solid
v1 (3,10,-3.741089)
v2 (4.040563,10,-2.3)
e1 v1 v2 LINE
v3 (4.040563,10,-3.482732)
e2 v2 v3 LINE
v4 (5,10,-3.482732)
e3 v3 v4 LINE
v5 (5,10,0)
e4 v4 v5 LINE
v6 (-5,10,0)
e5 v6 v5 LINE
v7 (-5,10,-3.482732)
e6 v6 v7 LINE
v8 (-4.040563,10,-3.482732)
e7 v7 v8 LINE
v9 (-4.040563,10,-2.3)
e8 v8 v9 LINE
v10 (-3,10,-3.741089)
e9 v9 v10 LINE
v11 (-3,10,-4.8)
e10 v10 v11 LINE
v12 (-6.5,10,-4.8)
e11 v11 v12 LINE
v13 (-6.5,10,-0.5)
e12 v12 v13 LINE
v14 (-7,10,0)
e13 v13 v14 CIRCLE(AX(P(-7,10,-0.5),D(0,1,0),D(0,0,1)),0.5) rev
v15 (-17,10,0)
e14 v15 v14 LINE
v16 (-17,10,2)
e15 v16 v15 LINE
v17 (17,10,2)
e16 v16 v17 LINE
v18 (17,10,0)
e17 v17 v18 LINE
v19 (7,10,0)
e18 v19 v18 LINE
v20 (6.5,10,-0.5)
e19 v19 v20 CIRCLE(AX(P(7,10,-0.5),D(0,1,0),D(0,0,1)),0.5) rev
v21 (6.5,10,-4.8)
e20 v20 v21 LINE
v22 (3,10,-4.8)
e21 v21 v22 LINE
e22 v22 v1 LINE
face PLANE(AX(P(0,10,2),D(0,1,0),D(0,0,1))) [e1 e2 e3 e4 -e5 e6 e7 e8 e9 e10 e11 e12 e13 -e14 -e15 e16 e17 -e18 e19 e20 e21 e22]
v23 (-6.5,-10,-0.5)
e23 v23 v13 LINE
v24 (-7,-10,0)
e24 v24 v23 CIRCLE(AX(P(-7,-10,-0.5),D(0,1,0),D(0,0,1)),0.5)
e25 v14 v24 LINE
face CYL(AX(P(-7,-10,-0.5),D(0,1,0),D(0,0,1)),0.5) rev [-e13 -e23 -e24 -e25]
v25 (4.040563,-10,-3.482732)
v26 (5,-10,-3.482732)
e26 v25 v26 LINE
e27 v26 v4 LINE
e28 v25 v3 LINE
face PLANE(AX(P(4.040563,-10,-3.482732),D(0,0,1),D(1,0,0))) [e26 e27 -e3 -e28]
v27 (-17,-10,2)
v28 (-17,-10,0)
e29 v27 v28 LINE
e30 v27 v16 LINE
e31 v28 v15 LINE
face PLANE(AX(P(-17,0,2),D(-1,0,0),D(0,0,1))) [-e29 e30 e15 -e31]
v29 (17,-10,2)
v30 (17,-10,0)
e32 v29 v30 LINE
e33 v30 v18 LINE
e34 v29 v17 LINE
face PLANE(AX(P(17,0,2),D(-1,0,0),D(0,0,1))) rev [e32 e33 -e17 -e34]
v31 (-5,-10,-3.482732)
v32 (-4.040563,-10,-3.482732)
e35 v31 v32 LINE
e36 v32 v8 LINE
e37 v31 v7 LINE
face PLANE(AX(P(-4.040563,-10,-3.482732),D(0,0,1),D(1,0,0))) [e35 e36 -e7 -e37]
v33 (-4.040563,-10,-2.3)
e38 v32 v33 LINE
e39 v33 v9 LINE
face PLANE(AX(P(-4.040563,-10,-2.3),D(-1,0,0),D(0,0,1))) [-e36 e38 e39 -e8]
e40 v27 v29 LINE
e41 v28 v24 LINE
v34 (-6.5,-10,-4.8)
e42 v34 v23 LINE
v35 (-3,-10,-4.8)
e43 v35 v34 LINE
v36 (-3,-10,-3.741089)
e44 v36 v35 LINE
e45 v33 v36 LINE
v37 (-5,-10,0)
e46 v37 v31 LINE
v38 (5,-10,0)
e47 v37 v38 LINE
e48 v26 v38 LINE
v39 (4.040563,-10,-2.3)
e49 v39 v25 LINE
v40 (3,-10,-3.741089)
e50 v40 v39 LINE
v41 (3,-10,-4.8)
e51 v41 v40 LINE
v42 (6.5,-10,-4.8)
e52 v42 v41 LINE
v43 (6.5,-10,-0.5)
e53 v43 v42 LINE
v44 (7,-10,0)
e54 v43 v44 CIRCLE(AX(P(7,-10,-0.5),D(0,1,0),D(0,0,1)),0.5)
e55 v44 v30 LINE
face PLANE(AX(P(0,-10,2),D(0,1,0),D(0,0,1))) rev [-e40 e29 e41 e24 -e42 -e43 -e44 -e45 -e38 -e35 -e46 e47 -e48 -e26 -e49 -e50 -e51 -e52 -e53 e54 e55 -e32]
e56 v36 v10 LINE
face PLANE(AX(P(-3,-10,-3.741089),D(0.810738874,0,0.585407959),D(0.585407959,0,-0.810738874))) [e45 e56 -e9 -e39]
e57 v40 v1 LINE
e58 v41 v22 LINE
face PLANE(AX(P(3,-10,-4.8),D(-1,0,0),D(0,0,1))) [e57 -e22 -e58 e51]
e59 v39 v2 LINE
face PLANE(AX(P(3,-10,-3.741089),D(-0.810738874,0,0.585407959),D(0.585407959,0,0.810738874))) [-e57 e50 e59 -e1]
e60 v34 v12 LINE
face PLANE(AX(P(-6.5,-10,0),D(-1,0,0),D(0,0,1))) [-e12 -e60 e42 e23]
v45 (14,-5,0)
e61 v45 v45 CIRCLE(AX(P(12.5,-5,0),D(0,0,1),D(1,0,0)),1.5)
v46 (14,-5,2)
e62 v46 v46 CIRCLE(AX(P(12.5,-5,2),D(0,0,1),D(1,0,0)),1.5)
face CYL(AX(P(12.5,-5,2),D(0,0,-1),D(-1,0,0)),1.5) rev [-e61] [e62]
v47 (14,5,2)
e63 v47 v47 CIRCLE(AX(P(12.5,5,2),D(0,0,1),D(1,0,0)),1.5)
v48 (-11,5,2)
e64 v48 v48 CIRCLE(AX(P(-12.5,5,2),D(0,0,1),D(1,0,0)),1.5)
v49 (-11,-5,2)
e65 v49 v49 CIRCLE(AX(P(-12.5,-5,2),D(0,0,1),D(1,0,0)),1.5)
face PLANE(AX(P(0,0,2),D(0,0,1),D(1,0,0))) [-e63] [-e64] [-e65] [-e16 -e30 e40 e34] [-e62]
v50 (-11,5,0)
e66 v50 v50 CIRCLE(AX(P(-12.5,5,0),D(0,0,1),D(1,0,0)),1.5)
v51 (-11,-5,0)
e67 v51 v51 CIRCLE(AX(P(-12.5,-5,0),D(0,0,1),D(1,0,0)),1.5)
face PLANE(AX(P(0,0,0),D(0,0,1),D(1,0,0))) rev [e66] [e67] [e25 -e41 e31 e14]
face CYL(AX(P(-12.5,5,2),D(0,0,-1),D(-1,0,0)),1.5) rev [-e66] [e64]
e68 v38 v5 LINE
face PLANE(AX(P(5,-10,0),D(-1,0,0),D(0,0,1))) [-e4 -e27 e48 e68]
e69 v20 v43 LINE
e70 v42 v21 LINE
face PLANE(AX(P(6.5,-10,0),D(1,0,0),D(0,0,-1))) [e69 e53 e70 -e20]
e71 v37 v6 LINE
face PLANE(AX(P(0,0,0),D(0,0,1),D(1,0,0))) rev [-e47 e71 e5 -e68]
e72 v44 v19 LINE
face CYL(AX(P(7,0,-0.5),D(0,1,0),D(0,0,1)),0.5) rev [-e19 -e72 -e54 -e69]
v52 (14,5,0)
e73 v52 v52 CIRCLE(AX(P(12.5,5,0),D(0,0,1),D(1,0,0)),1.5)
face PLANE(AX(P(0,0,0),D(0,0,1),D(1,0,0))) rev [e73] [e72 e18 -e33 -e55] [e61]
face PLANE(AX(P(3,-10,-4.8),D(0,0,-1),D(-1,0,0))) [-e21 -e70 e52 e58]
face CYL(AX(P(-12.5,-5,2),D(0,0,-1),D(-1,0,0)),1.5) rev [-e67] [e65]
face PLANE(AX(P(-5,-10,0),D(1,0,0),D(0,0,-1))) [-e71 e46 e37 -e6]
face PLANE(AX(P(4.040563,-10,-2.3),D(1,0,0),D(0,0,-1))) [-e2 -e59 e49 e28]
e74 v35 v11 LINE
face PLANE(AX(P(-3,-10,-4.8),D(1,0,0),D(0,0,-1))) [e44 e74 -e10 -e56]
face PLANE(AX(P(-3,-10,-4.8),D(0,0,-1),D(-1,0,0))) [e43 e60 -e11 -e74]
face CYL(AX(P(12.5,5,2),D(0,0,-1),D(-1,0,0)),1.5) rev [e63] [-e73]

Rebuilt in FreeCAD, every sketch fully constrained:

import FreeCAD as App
import Part
import Sketcher
from FreeCAD import Vector


def edges_at(feature, points):
    """Names of the edges that pass closest to the given points."""
    edges = feature.Shape.Edges
    near = lambda p: min(range(len(edges)), key=lambda i: edges[i].distToShape(Part.Vertex(*p))[0])
    return sorted({f"Edge{near(p) + 1}" for p in points})


def add_polygon(sketch, points):
    """Adds a closed chain of lines whose ends are joined by coincident constraints."""
    first, n = sketch.GeometryCount, len(points)
    for a, b in zip(points, points[1:] + points[:1]):
        sketch.addGeometry(Part.LineSegment(App.Vector(*a, 0), App.Vector(*b, 0)), False)
    for i in range(n):
        sketch.addConstraint(Sketcher.Constraint("Coincident", first + i, 2, first + (i + 1) % n, 1))

doc = App.newDocument("Part")
body = doc.addObject("PartDesign::Body", "Body")

sketch1 = doc.addObject("Sketcher::SketchObject", "Sketch")
body.addObject(sketch1)
sketch1.AttachmentSupport = (doc.XY_Plane, [""])
sketch1.MapMode = "FlatFace"
add_polygon(sketch1, [(-17, 10), (-17, -10), (17, -10), (17, 10)])
sketch1.addGeometry(Part.Circle(Vector(-12.5, -5, 0), Vector(0, 0, 1), 1.5), False)
sketch1.addGeometry(Part.Circle(Vector(12.5, -5, 0), Vector(0, 0, 1), 1.5), False)
sketch1.addGeometry(Part.Circle(Vector(-12.5, 5, 0), Vector(0, 0, 1), 1.5), False)
sketch1.addGeometry(Part.Circle(Vector(12.5, 5, 0), Vector(0, 0, 1), 1.5), False)
sketch1.addConstraint([
    Sketcher.Constraint("Vertical", 0),
    Sketcher.Constraint("Horizontal", 1),
    Sketcher.Constraint("Vertical", 2),
    Sketcher.Constraint("Horizontal", 3),
    Sketcher.Constraint("Equal", 4, 5),
    Sketcher.Constraint("Equal", 5, 6),
    Sketcher.Constraint("Equal", 6, 7),
    Sketcher.Constraint("Symmetric", 5, 3, 6, 3, -1, 1),
    Sketcher.Constraint("Symmetric", 4, 3, 7, 3, -1, 1),
    Sketcher.Constraint("Symmetric", 0, 2, 2, 2, -1, 1),
    Sketcher.Constraint("Symmetric", 4, 3, 5, 3, -2),
    Sketcher.Constraint("Diameter", 4, 3.0),
    Sketcher.Constraint("DistanceX", 1, 1, 1, 2, 34.0),
    Sketcher.Constraint("DistanceY", 0, 2, 0, 1, 20.0),
    Sketcher.Constraint("DistanceY", 4, 3, -1, 1, 5.0),
    Sketcher.Constraint("DistanceX", 4, 3, 5, 3, 25.0),
])
pad1 = doc.addObject("PartDesign::Pad", "Pad")
body.addObject(pad1)
pad1.Profile = sketch1
pad1.Length = 2

sketch2 = doc.addObject("Sketcher::SketchObject", "Sketch001")
body.addObject(sketch2)
sketch2.AttachmentSupport = (doc.XZ_Plane, [""])
sketch2.MapMode = "FlatFace"
sketch2.AttachmentOffset = App.Placement(Vector(0, 0, -10), App.Rotation())
add_polygon(sketch2, [(-6.5, 0), (-5, 0), (-5, -3.5), (-4, -3.5), (-4, -2.3), (-3, -3.7), (-3, -4.8), (-6.5, -4.8)])
add_polygon(sketch2, [(6.5, -4.8), (3, -4.8), (3, -3.7), (4, -2.3), (4, -3.5), (5, -3.5), (5, 0), (6.5, 0)])
sketch2.addConstraint([
    Sketcher.Constraint("Horizontal", 0),
    Sketcher.Constraint("Vertical", 1),
    Sketcher.Constraint("Horizontal", 2),
    Sketcher.Constraint("Vertical", 3),
    Sketcher.Constraint("Vertical", 5),
    Sketcher.Constraint("Horizontal", 6),
    Sketcher.Constraint("Vertical", 7),
    Sketcher.Constraint("Horizontal", 8),
    Sketcher.Constraint("Vertical", 9),
    Sketcher.Constraint("Vertical", 11),
    Sketcher.Constraint("Horizontal", 12),
    Sketcher.Constraint("Vertical", 13),
    Sketcher.Constraint("Horizontal", 14),
    Sketcher.Constraint("Vertical", 15),
    Sketcher.Constraint("Symmetric", 0, 2, 13, 2, -1, 1),
    Sketcher.Constraint("Symmetric", 5, 2, 8, 2, -2),
    Sketcher.Constraint("Symmetric", 3, 2, 10, 2, -2),
    Sketcher.Constraint("Symmetric", 7, 2, 14, 2, -2),
    Sketcher.Constraint("Horizontal", 4, 2, 9, 2),
    Sketcher.Constraint("Horizontal", 2, 2, 11, 2),
    Sketcher.Constraint("DistanceX", 0, 1, 0, 2, 1.5),
    Sketcher.Constraint("DistanceX", 6, 2, 6, 1, 3.5),
    Sketcher.Constraint("DistanceY", 7, 1, 7, 2, 4.8),
    Sketcher.Constraint("DistanceX", 0, 2, -1, 1, 5.0),
    Sketcher.Constraint("DistanceY", 3, 2, -1, 1, 2.3),
    Sketcher.Constraint("Distance", 4, 1.777501),
    Sketcher.Constraint("DistanceY", 5, 2, 5, 1, 1.058911),
    Sketcher.Constraint("DistanceY", 1, 2, 1, 1, 3.482732),
])
pad2 = doc.addObject("PartDesign::Pad", "Pad001")
body.addObject(pad2)
pad2.Profile = sketch2
pad2.Length = 20
doc.recompute()

fillet = doc.addObject("PartDesign::Fillet", "Fillet")
body.addObject(fillet)
fillet.Base = (pad2, edges_at(pad2, [(-6.5, 0, 0), (6.5, 0, 0)]))
fillet.Radius = 0.5

doc.recompute()
